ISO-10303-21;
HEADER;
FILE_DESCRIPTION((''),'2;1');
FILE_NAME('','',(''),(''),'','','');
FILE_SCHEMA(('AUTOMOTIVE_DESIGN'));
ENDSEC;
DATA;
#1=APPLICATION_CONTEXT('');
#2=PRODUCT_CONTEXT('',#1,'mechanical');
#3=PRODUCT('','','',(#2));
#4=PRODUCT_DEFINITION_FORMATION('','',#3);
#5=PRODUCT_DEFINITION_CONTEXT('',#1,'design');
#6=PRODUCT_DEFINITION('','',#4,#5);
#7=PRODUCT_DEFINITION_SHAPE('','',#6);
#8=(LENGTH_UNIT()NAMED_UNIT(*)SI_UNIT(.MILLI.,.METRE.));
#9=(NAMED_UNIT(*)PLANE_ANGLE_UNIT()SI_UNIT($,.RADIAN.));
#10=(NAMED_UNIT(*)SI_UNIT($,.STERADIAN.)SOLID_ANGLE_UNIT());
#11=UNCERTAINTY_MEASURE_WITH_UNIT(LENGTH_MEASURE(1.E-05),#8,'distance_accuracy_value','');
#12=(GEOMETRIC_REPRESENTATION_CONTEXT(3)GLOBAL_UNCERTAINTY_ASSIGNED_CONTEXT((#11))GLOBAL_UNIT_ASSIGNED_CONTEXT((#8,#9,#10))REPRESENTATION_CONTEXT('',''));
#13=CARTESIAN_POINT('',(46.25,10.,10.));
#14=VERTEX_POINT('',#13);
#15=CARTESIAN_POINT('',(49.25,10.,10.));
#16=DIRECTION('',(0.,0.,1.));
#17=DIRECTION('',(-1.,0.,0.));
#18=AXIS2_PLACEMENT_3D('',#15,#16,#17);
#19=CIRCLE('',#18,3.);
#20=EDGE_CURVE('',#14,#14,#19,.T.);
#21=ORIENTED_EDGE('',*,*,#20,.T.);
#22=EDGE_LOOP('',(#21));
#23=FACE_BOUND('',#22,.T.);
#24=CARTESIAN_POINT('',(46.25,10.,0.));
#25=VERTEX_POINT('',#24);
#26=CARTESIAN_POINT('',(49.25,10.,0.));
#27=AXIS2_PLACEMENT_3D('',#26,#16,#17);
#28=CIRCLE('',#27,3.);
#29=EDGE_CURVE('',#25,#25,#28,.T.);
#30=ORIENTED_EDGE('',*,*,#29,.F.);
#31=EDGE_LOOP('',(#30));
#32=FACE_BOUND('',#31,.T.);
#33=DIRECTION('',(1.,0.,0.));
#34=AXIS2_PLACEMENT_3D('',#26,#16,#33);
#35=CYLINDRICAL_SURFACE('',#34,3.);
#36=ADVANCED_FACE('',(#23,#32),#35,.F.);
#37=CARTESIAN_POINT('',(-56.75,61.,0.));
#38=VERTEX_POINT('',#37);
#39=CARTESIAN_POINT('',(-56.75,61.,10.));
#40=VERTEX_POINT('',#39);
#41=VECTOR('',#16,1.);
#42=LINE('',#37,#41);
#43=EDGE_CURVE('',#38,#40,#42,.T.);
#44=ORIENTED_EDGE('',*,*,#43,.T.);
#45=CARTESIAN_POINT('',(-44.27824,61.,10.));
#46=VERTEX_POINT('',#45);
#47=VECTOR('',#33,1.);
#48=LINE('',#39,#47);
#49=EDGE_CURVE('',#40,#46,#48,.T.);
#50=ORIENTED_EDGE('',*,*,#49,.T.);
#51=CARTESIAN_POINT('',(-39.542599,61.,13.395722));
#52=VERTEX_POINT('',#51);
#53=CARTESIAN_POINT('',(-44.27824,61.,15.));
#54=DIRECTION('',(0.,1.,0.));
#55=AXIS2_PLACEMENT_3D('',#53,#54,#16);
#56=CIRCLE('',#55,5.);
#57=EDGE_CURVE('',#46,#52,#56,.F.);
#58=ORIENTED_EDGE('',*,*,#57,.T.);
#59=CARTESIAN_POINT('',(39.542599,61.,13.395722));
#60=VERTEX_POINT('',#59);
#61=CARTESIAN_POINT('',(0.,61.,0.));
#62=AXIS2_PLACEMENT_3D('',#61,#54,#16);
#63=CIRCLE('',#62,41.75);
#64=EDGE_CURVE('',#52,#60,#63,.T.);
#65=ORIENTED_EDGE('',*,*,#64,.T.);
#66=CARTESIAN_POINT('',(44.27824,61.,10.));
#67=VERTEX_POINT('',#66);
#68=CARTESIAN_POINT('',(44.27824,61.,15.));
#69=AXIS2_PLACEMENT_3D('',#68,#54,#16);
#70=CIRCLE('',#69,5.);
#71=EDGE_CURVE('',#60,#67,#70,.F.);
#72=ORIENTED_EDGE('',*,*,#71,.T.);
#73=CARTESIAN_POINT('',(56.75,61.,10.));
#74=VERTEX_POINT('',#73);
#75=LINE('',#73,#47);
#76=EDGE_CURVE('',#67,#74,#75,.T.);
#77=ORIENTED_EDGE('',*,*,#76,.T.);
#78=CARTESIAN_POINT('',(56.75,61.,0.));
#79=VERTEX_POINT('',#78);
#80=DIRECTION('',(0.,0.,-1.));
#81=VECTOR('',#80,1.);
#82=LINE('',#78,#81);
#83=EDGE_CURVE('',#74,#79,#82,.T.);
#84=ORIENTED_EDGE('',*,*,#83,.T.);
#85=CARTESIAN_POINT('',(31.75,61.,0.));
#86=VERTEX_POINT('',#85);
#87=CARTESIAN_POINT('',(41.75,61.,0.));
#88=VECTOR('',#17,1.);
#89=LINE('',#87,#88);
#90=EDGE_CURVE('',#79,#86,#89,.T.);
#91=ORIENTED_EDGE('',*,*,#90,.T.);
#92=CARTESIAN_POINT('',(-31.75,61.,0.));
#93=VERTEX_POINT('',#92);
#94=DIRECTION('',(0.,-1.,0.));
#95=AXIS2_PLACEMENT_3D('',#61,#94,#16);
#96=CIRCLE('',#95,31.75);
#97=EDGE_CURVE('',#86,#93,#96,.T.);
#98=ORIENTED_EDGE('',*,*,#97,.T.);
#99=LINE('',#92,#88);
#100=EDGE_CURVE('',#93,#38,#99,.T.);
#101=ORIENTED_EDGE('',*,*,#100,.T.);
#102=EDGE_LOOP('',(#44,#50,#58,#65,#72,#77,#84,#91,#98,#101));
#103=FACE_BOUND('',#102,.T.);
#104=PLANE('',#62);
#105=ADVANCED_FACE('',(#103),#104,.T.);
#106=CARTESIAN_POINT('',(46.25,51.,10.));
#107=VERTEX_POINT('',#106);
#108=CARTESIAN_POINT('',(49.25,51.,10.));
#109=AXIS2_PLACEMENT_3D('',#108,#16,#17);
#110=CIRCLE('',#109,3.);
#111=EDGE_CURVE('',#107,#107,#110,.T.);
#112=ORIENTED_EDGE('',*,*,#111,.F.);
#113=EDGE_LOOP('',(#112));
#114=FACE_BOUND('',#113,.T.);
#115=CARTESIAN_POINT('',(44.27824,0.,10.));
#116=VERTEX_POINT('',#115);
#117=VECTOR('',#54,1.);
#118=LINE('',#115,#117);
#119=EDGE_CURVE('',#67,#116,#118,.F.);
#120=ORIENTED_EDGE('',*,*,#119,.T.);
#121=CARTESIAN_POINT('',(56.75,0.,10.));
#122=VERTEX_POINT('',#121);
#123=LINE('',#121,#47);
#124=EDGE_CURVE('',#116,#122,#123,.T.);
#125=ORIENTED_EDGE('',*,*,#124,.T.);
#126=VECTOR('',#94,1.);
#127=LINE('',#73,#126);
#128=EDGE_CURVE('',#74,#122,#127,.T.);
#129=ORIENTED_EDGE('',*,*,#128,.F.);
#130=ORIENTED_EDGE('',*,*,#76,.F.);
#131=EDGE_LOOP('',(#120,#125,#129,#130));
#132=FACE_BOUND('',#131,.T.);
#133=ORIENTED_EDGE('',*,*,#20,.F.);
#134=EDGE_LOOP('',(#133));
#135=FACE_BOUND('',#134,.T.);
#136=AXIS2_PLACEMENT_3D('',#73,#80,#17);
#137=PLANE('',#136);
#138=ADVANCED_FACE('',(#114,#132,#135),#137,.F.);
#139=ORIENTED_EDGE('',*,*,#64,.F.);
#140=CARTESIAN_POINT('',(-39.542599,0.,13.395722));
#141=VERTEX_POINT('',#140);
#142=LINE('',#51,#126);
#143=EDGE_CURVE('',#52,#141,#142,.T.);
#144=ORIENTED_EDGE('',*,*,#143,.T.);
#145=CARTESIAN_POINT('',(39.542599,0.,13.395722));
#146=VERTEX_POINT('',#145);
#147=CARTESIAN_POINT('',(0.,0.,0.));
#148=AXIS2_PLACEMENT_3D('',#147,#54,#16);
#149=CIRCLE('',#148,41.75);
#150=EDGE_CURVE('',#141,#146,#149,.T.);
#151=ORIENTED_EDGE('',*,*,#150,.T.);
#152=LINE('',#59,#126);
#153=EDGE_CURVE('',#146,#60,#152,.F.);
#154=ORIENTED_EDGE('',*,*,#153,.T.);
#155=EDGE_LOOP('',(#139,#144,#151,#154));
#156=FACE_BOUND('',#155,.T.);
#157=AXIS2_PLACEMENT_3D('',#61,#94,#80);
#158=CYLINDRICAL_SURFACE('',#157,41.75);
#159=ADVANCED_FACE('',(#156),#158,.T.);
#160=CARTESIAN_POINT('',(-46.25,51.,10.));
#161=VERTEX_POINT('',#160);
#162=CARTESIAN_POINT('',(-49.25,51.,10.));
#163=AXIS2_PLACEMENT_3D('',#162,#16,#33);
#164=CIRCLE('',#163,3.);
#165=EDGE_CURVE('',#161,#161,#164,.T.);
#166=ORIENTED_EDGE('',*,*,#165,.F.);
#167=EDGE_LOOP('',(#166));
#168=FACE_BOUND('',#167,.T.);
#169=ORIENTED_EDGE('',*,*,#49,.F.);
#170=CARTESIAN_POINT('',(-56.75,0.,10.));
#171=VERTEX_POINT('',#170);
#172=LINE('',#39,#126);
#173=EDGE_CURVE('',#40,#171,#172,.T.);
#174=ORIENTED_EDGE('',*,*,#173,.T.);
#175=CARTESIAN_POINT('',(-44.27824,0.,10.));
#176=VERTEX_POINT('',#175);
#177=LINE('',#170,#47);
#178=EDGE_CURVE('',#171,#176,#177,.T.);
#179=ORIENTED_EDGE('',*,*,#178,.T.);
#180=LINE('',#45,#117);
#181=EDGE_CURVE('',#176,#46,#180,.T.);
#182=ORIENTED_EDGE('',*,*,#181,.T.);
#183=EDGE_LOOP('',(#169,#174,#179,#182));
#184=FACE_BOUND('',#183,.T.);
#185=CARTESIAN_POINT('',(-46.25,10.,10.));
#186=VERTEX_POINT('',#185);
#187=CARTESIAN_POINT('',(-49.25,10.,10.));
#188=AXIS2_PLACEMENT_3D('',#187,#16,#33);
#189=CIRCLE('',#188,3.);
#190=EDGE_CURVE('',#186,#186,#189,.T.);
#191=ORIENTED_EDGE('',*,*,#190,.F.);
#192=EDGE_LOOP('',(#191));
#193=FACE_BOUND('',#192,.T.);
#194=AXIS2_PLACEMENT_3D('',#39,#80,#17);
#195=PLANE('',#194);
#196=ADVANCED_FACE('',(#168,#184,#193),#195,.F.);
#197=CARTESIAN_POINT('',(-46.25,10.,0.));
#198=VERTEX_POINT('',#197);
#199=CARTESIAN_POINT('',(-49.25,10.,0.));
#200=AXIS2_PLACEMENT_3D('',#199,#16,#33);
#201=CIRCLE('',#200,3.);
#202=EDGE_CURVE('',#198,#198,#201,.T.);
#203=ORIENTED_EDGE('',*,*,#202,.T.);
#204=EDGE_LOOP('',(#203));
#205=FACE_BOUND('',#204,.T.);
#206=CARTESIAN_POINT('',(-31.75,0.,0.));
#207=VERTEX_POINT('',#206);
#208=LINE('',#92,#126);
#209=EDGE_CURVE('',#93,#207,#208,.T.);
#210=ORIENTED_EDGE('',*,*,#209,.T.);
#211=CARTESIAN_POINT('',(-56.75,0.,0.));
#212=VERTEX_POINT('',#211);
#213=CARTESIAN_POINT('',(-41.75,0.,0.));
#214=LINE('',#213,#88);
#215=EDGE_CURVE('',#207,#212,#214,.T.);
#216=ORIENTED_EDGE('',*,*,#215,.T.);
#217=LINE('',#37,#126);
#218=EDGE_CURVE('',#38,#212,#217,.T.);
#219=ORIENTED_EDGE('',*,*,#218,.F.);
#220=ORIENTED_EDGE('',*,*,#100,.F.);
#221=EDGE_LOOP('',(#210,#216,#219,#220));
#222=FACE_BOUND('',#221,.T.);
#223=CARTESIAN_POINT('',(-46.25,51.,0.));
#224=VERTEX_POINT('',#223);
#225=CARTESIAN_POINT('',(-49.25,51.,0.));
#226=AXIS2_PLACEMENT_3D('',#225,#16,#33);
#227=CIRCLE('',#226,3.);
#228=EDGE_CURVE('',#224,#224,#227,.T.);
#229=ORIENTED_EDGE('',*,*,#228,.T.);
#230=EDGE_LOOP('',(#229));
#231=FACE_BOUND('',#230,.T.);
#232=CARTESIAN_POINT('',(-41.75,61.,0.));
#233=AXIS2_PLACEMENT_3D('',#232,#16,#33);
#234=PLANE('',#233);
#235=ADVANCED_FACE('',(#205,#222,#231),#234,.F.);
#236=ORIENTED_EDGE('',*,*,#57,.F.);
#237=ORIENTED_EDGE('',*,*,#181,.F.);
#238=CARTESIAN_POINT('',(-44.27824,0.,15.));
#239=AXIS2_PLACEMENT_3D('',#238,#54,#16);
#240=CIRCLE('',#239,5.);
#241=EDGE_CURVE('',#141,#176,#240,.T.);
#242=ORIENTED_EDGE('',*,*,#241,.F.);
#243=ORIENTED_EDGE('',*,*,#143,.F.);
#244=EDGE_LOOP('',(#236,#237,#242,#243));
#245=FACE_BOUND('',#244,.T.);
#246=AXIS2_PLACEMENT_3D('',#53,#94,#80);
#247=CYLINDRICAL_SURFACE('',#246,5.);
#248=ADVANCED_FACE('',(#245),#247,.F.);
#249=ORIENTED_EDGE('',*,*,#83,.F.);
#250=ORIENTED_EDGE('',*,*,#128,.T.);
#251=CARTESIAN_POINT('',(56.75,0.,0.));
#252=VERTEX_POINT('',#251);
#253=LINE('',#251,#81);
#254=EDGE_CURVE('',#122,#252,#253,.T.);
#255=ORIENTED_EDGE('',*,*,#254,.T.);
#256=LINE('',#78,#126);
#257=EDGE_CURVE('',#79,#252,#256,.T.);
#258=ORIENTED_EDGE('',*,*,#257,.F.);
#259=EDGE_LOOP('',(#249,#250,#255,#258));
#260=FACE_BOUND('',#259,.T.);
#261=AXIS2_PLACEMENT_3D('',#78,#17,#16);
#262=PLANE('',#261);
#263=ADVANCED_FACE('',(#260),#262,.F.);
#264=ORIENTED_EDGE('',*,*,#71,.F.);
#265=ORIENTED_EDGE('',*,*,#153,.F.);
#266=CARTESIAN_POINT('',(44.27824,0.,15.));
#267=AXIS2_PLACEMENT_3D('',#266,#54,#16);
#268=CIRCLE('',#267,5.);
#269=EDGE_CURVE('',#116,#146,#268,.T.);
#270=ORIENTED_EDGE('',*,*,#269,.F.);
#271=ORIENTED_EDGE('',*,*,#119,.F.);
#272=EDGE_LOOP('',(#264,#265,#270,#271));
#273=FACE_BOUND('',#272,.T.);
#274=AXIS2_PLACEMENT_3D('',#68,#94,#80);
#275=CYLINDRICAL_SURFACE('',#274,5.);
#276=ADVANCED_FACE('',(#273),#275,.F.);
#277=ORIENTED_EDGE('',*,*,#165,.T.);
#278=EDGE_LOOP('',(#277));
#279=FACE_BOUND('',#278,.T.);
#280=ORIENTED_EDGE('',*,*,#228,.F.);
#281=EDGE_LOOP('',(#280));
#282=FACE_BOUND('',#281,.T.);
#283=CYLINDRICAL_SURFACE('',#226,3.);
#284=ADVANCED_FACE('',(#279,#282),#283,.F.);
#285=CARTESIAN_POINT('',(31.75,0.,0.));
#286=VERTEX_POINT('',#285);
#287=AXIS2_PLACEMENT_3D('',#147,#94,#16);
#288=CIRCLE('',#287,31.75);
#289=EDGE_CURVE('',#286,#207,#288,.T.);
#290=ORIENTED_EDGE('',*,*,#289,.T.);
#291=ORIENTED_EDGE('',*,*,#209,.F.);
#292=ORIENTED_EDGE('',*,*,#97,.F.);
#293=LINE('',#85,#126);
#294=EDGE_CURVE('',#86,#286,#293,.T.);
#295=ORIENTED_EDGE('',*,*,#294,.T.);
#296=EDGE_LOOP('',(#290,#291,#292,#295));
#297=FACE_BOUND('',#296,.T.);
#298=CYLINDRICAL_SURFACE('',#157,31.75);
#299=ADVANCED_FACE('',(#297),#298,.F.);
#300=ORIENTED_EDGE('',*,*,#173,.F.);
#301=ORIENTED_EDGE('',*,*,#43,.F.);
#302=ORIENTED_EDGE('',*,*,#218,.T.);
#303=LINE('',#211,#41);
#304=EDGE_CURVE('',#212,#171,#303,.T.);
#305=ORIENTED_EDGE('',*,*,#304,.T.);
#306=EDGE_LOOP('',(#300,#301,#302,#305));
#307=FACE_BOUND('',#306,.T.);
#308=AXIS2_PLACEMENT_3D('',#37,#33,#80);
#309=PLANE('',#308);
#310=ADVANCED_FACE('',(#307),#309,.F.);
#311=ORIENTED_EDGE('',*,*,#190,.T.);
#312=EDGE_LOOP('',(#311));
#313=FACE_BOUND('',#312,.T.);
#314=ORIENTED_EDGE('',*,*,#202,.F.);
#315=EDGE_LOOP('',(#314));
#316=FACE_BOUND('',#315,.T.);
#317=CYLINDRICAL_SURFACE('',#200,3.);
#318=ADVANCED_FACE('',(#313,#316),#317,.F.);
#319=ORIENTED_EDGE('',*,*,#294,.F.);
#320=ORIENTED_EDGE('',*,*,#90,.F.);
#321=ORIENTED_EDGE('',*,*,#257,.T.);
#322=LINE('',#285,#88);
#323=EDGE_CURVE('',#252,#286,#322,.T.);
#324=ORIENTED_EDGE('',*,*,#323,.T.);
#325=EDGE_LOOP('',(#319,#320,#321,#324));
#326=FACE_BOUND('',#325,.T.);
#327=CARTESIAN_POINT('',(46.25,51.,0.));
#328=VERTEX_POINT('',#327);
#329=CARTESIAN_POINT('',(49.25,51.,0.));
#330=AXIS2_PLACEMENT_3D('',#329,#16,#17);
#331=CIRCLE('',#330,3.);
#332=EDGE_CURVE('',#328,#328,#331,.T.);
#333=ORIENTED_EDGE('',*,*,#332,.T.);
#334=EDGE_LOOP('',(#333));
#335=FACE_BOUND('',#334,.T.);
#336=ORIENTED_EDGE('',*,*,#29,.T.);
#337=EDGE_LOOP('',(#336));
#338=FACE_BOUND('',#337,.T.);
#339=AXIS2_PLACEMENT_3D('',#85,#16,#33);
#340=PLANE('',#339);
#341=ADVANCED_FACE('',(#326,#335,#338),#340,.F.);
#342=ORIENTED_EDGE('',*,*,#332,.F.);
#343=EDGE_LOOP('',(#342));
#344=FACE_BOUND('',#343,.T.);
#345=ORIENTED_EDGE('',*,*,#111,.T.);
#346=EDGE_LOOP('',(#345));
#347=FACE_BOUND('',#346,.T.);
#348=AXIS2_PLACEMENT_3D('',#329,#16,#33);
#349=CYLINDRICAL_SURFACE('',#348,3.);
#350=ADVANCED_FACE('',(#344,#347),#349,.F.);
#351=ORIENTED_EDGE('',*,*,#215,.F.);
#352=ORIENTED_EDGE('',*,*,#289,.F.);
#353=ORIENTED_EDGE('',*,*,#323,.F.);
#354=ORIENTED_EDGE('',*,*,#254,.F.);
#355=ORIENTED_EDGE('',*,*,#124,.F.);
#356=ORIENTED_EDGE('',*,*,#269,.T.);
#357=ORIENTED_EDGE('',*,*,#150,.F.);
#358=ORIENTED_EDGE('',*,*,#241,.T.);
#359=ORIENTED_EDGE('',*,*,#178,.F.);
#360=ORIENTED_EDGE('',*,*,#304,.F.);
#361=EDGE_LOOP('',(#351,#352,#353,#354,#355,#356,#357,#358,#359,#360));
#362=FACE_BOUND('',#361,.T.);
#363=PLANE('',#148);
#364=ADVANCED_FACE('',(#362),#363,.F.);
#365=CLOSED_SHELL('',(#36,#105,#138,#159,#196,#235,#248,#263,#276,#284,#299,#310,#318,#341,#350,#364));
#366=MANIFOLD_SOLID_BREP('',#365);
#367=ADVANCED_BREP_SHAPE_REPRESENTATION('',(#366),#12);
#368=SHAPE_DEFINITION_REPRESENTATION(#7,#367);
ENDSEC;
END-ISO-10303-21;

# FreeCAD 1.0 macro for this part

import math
import FreeCAD as App
import Part
import Sketcher


def edges_at(feature, points):
    """Names of the edges that pass closest to the given points."""
    edges = feature.Shape.Edges
    near = lambda p: min(range(len(edges)), key=lambda i: edges[i].distToShape(Part.Vertex(*p))[0])
    return sorted({f"Edge{near(p) + 1}" for p in points})

doc = App.newDocument("Part")
body = doc.addObject("PartDesign::Body", "Body")

sketch1 = body.newObject("Sketcher::SketchObject", "Sketch")
sketch1.AttachmentSupport = (doc.getObject("XZ_Plane"), [""])
sketch1.MapMode = "FlatFace"
sketch1.addGeometry([
    Part.LineSegment(App.Vector(-32, 0, 0), App.Vector(-57, 0, 0)),
    Part.LineSegment(App.Vector(-57, 0, 0), App.Vector(-57, 10, 0)),
    Part.LineSegment(App.Vector(-57, 10, 0), App.Vector(-41, 10, 0)),
    Part.ArcOfCircle(Part.Circle(App.Vector(0, 0, 0), App.Vector(0, 0, 1), 42), math.radians(14), math.radians(166)),
    Part.LineSegment(App.Vector(41, 10, 0), App.Vector(57, 10, 0)),
    Part.LineSegment(App.Vector(57, 10, 0), App.Vector(57, 0, 0)),
    Part.LineSegment(App.Vector(57, 0, 0), App.Vector(32, 0, 0)),
    Part.ArcOfCircle(Part.Circle(App.Vector(0, 0, 0), App.Vector(0, 0, 1), 32), math.radians(0), math.radians(180)),
], False)
sketch1.addConstraint([
    Sketcher.Constraint("Coincident", 0, 2, 1, 1),
    Sketcher.Constraint("Coincident", 1, 2, 2, 1),
    Sketcher.Constraint("Coincident", 2, 2, 3, 2),
    Sketcher.Constraint("Coincident", 3, 1, 4, 1),
    Sketcher.Constraint("Coincident", 4, 2, 5, 1),
    Sketcher.Constraint("Coincident", 5, 2, 6, 1),
    Sketcher.Constraint("Coincident", 6, 2, 7, 1),
    Sketcher.Constraint("Coincident", 7, 2, 0, 1),
    Sketcher.Constraint("Horizontal", 0),
    Sketcher.Constraint("Vertical", 1),
    Sketcher.Constraint("Horizontal", 2),
    Sketcher.Constraint("Horizontal", 4),
    Sketcher.Constraint("Vertical", 5),
    Sketcher.Constraint("Horizontal", 6),
    Sketcher.Constraint("Coincident", 3, 3, -1, 1),
    Sketcher.Constraint("Coincident", 7, 3, -1, 1),
    Sketcher.Constraint("Symmetric", 0, 2, 5, 2, -1, 1),
    Sketcher.Constraint("PointOnObject", 0, 2, -1),
    Sketcher.Constraint("Horizontal", 2, 2, 3, 1),
    Sketcher.Constraint("DistanceX", 0, 2, 0, 1, 25.0),
    Sketcher.Constraint("DistanceY", 1, 1, 1, 2, 10.0),
    Sketcher.Constraint("Radius", 3, 41.75),
    Sketcher.Constraint("Radius", 7, 31.75),
])
pad1 = body.newObject("PartDesign::Pad", "Pad")
pad1.Profile = sketch1
pad1.Length = 61
pad1.Reversed = True

sketch2 = body.newObject("Sketcher::SketchObject", "Sketch001")
sketch2.AttachmentSupport = (doc.getObject("XY_Plane"), [""])
sketch2.MapMode = "FlatFace"
sketch2.AttachmentOffset = App.Placement(App.Vector(0, 0, 10), App.Rotation())
sketch2.addGeometry([
    Part.Circle(App.Vector(-49.2, 51, 0), App.Vector(0, 0, 1), 3),
    Part.Circle(App.Vector(-49.2, 10, 0), App.Vector(0, 0, 1), 3),
    Part.Circle(App.Vector(49.2, 10, 0), App.Vector(0, 0, 1), 3),
    Part.Circle(App.Vector(49.2, 51, 0), App.Vector(0, 0, 1), 3),
], False)
sketch2.addConstraint([
    Sketcher.Constraint("Equal", 0, 1),
    Sketcher.Constraint("Equal", 1, 2),
    Sketcher.Constraint("Equal", 2, 3),
    Sketcher.Constraint("Symmetric", 1, 3, 2, 3, -2),
    Sketcher.Constraint("Symmetric", 0, 3, 3, 3, -2),
    Sketcher.Constraint("Vertical", 0, 3, 1, 3),
    Sketcher.Constraint("Diameter", 0, 6.0),
    Sketcher.Constraint("DistanceY", -1, 1, 0, 3, 51.0),
    Sketcher.Constraint("DistanceY", -1, 1, 1, 3, 10.0),
    Sketcher.Constraint("DistanceX", 1, 3, 2, 3, 98.5),
])
pocket1 = body.newObject("PartDesign::Pocket", "Pocket")
pocket1.Profile = sketch2
pocket1.Type = "ThroughAll"
doc.recompute()

fillet = body.newObject("PartDesign::Fillet", "Fillet")
fillet.Base = (pocket1, edges_at(pocket1, [(40.535, 30.5, 10), (-40.535, 30.5, 10)]))
fillet.Radius = 5

doc.recompute()
